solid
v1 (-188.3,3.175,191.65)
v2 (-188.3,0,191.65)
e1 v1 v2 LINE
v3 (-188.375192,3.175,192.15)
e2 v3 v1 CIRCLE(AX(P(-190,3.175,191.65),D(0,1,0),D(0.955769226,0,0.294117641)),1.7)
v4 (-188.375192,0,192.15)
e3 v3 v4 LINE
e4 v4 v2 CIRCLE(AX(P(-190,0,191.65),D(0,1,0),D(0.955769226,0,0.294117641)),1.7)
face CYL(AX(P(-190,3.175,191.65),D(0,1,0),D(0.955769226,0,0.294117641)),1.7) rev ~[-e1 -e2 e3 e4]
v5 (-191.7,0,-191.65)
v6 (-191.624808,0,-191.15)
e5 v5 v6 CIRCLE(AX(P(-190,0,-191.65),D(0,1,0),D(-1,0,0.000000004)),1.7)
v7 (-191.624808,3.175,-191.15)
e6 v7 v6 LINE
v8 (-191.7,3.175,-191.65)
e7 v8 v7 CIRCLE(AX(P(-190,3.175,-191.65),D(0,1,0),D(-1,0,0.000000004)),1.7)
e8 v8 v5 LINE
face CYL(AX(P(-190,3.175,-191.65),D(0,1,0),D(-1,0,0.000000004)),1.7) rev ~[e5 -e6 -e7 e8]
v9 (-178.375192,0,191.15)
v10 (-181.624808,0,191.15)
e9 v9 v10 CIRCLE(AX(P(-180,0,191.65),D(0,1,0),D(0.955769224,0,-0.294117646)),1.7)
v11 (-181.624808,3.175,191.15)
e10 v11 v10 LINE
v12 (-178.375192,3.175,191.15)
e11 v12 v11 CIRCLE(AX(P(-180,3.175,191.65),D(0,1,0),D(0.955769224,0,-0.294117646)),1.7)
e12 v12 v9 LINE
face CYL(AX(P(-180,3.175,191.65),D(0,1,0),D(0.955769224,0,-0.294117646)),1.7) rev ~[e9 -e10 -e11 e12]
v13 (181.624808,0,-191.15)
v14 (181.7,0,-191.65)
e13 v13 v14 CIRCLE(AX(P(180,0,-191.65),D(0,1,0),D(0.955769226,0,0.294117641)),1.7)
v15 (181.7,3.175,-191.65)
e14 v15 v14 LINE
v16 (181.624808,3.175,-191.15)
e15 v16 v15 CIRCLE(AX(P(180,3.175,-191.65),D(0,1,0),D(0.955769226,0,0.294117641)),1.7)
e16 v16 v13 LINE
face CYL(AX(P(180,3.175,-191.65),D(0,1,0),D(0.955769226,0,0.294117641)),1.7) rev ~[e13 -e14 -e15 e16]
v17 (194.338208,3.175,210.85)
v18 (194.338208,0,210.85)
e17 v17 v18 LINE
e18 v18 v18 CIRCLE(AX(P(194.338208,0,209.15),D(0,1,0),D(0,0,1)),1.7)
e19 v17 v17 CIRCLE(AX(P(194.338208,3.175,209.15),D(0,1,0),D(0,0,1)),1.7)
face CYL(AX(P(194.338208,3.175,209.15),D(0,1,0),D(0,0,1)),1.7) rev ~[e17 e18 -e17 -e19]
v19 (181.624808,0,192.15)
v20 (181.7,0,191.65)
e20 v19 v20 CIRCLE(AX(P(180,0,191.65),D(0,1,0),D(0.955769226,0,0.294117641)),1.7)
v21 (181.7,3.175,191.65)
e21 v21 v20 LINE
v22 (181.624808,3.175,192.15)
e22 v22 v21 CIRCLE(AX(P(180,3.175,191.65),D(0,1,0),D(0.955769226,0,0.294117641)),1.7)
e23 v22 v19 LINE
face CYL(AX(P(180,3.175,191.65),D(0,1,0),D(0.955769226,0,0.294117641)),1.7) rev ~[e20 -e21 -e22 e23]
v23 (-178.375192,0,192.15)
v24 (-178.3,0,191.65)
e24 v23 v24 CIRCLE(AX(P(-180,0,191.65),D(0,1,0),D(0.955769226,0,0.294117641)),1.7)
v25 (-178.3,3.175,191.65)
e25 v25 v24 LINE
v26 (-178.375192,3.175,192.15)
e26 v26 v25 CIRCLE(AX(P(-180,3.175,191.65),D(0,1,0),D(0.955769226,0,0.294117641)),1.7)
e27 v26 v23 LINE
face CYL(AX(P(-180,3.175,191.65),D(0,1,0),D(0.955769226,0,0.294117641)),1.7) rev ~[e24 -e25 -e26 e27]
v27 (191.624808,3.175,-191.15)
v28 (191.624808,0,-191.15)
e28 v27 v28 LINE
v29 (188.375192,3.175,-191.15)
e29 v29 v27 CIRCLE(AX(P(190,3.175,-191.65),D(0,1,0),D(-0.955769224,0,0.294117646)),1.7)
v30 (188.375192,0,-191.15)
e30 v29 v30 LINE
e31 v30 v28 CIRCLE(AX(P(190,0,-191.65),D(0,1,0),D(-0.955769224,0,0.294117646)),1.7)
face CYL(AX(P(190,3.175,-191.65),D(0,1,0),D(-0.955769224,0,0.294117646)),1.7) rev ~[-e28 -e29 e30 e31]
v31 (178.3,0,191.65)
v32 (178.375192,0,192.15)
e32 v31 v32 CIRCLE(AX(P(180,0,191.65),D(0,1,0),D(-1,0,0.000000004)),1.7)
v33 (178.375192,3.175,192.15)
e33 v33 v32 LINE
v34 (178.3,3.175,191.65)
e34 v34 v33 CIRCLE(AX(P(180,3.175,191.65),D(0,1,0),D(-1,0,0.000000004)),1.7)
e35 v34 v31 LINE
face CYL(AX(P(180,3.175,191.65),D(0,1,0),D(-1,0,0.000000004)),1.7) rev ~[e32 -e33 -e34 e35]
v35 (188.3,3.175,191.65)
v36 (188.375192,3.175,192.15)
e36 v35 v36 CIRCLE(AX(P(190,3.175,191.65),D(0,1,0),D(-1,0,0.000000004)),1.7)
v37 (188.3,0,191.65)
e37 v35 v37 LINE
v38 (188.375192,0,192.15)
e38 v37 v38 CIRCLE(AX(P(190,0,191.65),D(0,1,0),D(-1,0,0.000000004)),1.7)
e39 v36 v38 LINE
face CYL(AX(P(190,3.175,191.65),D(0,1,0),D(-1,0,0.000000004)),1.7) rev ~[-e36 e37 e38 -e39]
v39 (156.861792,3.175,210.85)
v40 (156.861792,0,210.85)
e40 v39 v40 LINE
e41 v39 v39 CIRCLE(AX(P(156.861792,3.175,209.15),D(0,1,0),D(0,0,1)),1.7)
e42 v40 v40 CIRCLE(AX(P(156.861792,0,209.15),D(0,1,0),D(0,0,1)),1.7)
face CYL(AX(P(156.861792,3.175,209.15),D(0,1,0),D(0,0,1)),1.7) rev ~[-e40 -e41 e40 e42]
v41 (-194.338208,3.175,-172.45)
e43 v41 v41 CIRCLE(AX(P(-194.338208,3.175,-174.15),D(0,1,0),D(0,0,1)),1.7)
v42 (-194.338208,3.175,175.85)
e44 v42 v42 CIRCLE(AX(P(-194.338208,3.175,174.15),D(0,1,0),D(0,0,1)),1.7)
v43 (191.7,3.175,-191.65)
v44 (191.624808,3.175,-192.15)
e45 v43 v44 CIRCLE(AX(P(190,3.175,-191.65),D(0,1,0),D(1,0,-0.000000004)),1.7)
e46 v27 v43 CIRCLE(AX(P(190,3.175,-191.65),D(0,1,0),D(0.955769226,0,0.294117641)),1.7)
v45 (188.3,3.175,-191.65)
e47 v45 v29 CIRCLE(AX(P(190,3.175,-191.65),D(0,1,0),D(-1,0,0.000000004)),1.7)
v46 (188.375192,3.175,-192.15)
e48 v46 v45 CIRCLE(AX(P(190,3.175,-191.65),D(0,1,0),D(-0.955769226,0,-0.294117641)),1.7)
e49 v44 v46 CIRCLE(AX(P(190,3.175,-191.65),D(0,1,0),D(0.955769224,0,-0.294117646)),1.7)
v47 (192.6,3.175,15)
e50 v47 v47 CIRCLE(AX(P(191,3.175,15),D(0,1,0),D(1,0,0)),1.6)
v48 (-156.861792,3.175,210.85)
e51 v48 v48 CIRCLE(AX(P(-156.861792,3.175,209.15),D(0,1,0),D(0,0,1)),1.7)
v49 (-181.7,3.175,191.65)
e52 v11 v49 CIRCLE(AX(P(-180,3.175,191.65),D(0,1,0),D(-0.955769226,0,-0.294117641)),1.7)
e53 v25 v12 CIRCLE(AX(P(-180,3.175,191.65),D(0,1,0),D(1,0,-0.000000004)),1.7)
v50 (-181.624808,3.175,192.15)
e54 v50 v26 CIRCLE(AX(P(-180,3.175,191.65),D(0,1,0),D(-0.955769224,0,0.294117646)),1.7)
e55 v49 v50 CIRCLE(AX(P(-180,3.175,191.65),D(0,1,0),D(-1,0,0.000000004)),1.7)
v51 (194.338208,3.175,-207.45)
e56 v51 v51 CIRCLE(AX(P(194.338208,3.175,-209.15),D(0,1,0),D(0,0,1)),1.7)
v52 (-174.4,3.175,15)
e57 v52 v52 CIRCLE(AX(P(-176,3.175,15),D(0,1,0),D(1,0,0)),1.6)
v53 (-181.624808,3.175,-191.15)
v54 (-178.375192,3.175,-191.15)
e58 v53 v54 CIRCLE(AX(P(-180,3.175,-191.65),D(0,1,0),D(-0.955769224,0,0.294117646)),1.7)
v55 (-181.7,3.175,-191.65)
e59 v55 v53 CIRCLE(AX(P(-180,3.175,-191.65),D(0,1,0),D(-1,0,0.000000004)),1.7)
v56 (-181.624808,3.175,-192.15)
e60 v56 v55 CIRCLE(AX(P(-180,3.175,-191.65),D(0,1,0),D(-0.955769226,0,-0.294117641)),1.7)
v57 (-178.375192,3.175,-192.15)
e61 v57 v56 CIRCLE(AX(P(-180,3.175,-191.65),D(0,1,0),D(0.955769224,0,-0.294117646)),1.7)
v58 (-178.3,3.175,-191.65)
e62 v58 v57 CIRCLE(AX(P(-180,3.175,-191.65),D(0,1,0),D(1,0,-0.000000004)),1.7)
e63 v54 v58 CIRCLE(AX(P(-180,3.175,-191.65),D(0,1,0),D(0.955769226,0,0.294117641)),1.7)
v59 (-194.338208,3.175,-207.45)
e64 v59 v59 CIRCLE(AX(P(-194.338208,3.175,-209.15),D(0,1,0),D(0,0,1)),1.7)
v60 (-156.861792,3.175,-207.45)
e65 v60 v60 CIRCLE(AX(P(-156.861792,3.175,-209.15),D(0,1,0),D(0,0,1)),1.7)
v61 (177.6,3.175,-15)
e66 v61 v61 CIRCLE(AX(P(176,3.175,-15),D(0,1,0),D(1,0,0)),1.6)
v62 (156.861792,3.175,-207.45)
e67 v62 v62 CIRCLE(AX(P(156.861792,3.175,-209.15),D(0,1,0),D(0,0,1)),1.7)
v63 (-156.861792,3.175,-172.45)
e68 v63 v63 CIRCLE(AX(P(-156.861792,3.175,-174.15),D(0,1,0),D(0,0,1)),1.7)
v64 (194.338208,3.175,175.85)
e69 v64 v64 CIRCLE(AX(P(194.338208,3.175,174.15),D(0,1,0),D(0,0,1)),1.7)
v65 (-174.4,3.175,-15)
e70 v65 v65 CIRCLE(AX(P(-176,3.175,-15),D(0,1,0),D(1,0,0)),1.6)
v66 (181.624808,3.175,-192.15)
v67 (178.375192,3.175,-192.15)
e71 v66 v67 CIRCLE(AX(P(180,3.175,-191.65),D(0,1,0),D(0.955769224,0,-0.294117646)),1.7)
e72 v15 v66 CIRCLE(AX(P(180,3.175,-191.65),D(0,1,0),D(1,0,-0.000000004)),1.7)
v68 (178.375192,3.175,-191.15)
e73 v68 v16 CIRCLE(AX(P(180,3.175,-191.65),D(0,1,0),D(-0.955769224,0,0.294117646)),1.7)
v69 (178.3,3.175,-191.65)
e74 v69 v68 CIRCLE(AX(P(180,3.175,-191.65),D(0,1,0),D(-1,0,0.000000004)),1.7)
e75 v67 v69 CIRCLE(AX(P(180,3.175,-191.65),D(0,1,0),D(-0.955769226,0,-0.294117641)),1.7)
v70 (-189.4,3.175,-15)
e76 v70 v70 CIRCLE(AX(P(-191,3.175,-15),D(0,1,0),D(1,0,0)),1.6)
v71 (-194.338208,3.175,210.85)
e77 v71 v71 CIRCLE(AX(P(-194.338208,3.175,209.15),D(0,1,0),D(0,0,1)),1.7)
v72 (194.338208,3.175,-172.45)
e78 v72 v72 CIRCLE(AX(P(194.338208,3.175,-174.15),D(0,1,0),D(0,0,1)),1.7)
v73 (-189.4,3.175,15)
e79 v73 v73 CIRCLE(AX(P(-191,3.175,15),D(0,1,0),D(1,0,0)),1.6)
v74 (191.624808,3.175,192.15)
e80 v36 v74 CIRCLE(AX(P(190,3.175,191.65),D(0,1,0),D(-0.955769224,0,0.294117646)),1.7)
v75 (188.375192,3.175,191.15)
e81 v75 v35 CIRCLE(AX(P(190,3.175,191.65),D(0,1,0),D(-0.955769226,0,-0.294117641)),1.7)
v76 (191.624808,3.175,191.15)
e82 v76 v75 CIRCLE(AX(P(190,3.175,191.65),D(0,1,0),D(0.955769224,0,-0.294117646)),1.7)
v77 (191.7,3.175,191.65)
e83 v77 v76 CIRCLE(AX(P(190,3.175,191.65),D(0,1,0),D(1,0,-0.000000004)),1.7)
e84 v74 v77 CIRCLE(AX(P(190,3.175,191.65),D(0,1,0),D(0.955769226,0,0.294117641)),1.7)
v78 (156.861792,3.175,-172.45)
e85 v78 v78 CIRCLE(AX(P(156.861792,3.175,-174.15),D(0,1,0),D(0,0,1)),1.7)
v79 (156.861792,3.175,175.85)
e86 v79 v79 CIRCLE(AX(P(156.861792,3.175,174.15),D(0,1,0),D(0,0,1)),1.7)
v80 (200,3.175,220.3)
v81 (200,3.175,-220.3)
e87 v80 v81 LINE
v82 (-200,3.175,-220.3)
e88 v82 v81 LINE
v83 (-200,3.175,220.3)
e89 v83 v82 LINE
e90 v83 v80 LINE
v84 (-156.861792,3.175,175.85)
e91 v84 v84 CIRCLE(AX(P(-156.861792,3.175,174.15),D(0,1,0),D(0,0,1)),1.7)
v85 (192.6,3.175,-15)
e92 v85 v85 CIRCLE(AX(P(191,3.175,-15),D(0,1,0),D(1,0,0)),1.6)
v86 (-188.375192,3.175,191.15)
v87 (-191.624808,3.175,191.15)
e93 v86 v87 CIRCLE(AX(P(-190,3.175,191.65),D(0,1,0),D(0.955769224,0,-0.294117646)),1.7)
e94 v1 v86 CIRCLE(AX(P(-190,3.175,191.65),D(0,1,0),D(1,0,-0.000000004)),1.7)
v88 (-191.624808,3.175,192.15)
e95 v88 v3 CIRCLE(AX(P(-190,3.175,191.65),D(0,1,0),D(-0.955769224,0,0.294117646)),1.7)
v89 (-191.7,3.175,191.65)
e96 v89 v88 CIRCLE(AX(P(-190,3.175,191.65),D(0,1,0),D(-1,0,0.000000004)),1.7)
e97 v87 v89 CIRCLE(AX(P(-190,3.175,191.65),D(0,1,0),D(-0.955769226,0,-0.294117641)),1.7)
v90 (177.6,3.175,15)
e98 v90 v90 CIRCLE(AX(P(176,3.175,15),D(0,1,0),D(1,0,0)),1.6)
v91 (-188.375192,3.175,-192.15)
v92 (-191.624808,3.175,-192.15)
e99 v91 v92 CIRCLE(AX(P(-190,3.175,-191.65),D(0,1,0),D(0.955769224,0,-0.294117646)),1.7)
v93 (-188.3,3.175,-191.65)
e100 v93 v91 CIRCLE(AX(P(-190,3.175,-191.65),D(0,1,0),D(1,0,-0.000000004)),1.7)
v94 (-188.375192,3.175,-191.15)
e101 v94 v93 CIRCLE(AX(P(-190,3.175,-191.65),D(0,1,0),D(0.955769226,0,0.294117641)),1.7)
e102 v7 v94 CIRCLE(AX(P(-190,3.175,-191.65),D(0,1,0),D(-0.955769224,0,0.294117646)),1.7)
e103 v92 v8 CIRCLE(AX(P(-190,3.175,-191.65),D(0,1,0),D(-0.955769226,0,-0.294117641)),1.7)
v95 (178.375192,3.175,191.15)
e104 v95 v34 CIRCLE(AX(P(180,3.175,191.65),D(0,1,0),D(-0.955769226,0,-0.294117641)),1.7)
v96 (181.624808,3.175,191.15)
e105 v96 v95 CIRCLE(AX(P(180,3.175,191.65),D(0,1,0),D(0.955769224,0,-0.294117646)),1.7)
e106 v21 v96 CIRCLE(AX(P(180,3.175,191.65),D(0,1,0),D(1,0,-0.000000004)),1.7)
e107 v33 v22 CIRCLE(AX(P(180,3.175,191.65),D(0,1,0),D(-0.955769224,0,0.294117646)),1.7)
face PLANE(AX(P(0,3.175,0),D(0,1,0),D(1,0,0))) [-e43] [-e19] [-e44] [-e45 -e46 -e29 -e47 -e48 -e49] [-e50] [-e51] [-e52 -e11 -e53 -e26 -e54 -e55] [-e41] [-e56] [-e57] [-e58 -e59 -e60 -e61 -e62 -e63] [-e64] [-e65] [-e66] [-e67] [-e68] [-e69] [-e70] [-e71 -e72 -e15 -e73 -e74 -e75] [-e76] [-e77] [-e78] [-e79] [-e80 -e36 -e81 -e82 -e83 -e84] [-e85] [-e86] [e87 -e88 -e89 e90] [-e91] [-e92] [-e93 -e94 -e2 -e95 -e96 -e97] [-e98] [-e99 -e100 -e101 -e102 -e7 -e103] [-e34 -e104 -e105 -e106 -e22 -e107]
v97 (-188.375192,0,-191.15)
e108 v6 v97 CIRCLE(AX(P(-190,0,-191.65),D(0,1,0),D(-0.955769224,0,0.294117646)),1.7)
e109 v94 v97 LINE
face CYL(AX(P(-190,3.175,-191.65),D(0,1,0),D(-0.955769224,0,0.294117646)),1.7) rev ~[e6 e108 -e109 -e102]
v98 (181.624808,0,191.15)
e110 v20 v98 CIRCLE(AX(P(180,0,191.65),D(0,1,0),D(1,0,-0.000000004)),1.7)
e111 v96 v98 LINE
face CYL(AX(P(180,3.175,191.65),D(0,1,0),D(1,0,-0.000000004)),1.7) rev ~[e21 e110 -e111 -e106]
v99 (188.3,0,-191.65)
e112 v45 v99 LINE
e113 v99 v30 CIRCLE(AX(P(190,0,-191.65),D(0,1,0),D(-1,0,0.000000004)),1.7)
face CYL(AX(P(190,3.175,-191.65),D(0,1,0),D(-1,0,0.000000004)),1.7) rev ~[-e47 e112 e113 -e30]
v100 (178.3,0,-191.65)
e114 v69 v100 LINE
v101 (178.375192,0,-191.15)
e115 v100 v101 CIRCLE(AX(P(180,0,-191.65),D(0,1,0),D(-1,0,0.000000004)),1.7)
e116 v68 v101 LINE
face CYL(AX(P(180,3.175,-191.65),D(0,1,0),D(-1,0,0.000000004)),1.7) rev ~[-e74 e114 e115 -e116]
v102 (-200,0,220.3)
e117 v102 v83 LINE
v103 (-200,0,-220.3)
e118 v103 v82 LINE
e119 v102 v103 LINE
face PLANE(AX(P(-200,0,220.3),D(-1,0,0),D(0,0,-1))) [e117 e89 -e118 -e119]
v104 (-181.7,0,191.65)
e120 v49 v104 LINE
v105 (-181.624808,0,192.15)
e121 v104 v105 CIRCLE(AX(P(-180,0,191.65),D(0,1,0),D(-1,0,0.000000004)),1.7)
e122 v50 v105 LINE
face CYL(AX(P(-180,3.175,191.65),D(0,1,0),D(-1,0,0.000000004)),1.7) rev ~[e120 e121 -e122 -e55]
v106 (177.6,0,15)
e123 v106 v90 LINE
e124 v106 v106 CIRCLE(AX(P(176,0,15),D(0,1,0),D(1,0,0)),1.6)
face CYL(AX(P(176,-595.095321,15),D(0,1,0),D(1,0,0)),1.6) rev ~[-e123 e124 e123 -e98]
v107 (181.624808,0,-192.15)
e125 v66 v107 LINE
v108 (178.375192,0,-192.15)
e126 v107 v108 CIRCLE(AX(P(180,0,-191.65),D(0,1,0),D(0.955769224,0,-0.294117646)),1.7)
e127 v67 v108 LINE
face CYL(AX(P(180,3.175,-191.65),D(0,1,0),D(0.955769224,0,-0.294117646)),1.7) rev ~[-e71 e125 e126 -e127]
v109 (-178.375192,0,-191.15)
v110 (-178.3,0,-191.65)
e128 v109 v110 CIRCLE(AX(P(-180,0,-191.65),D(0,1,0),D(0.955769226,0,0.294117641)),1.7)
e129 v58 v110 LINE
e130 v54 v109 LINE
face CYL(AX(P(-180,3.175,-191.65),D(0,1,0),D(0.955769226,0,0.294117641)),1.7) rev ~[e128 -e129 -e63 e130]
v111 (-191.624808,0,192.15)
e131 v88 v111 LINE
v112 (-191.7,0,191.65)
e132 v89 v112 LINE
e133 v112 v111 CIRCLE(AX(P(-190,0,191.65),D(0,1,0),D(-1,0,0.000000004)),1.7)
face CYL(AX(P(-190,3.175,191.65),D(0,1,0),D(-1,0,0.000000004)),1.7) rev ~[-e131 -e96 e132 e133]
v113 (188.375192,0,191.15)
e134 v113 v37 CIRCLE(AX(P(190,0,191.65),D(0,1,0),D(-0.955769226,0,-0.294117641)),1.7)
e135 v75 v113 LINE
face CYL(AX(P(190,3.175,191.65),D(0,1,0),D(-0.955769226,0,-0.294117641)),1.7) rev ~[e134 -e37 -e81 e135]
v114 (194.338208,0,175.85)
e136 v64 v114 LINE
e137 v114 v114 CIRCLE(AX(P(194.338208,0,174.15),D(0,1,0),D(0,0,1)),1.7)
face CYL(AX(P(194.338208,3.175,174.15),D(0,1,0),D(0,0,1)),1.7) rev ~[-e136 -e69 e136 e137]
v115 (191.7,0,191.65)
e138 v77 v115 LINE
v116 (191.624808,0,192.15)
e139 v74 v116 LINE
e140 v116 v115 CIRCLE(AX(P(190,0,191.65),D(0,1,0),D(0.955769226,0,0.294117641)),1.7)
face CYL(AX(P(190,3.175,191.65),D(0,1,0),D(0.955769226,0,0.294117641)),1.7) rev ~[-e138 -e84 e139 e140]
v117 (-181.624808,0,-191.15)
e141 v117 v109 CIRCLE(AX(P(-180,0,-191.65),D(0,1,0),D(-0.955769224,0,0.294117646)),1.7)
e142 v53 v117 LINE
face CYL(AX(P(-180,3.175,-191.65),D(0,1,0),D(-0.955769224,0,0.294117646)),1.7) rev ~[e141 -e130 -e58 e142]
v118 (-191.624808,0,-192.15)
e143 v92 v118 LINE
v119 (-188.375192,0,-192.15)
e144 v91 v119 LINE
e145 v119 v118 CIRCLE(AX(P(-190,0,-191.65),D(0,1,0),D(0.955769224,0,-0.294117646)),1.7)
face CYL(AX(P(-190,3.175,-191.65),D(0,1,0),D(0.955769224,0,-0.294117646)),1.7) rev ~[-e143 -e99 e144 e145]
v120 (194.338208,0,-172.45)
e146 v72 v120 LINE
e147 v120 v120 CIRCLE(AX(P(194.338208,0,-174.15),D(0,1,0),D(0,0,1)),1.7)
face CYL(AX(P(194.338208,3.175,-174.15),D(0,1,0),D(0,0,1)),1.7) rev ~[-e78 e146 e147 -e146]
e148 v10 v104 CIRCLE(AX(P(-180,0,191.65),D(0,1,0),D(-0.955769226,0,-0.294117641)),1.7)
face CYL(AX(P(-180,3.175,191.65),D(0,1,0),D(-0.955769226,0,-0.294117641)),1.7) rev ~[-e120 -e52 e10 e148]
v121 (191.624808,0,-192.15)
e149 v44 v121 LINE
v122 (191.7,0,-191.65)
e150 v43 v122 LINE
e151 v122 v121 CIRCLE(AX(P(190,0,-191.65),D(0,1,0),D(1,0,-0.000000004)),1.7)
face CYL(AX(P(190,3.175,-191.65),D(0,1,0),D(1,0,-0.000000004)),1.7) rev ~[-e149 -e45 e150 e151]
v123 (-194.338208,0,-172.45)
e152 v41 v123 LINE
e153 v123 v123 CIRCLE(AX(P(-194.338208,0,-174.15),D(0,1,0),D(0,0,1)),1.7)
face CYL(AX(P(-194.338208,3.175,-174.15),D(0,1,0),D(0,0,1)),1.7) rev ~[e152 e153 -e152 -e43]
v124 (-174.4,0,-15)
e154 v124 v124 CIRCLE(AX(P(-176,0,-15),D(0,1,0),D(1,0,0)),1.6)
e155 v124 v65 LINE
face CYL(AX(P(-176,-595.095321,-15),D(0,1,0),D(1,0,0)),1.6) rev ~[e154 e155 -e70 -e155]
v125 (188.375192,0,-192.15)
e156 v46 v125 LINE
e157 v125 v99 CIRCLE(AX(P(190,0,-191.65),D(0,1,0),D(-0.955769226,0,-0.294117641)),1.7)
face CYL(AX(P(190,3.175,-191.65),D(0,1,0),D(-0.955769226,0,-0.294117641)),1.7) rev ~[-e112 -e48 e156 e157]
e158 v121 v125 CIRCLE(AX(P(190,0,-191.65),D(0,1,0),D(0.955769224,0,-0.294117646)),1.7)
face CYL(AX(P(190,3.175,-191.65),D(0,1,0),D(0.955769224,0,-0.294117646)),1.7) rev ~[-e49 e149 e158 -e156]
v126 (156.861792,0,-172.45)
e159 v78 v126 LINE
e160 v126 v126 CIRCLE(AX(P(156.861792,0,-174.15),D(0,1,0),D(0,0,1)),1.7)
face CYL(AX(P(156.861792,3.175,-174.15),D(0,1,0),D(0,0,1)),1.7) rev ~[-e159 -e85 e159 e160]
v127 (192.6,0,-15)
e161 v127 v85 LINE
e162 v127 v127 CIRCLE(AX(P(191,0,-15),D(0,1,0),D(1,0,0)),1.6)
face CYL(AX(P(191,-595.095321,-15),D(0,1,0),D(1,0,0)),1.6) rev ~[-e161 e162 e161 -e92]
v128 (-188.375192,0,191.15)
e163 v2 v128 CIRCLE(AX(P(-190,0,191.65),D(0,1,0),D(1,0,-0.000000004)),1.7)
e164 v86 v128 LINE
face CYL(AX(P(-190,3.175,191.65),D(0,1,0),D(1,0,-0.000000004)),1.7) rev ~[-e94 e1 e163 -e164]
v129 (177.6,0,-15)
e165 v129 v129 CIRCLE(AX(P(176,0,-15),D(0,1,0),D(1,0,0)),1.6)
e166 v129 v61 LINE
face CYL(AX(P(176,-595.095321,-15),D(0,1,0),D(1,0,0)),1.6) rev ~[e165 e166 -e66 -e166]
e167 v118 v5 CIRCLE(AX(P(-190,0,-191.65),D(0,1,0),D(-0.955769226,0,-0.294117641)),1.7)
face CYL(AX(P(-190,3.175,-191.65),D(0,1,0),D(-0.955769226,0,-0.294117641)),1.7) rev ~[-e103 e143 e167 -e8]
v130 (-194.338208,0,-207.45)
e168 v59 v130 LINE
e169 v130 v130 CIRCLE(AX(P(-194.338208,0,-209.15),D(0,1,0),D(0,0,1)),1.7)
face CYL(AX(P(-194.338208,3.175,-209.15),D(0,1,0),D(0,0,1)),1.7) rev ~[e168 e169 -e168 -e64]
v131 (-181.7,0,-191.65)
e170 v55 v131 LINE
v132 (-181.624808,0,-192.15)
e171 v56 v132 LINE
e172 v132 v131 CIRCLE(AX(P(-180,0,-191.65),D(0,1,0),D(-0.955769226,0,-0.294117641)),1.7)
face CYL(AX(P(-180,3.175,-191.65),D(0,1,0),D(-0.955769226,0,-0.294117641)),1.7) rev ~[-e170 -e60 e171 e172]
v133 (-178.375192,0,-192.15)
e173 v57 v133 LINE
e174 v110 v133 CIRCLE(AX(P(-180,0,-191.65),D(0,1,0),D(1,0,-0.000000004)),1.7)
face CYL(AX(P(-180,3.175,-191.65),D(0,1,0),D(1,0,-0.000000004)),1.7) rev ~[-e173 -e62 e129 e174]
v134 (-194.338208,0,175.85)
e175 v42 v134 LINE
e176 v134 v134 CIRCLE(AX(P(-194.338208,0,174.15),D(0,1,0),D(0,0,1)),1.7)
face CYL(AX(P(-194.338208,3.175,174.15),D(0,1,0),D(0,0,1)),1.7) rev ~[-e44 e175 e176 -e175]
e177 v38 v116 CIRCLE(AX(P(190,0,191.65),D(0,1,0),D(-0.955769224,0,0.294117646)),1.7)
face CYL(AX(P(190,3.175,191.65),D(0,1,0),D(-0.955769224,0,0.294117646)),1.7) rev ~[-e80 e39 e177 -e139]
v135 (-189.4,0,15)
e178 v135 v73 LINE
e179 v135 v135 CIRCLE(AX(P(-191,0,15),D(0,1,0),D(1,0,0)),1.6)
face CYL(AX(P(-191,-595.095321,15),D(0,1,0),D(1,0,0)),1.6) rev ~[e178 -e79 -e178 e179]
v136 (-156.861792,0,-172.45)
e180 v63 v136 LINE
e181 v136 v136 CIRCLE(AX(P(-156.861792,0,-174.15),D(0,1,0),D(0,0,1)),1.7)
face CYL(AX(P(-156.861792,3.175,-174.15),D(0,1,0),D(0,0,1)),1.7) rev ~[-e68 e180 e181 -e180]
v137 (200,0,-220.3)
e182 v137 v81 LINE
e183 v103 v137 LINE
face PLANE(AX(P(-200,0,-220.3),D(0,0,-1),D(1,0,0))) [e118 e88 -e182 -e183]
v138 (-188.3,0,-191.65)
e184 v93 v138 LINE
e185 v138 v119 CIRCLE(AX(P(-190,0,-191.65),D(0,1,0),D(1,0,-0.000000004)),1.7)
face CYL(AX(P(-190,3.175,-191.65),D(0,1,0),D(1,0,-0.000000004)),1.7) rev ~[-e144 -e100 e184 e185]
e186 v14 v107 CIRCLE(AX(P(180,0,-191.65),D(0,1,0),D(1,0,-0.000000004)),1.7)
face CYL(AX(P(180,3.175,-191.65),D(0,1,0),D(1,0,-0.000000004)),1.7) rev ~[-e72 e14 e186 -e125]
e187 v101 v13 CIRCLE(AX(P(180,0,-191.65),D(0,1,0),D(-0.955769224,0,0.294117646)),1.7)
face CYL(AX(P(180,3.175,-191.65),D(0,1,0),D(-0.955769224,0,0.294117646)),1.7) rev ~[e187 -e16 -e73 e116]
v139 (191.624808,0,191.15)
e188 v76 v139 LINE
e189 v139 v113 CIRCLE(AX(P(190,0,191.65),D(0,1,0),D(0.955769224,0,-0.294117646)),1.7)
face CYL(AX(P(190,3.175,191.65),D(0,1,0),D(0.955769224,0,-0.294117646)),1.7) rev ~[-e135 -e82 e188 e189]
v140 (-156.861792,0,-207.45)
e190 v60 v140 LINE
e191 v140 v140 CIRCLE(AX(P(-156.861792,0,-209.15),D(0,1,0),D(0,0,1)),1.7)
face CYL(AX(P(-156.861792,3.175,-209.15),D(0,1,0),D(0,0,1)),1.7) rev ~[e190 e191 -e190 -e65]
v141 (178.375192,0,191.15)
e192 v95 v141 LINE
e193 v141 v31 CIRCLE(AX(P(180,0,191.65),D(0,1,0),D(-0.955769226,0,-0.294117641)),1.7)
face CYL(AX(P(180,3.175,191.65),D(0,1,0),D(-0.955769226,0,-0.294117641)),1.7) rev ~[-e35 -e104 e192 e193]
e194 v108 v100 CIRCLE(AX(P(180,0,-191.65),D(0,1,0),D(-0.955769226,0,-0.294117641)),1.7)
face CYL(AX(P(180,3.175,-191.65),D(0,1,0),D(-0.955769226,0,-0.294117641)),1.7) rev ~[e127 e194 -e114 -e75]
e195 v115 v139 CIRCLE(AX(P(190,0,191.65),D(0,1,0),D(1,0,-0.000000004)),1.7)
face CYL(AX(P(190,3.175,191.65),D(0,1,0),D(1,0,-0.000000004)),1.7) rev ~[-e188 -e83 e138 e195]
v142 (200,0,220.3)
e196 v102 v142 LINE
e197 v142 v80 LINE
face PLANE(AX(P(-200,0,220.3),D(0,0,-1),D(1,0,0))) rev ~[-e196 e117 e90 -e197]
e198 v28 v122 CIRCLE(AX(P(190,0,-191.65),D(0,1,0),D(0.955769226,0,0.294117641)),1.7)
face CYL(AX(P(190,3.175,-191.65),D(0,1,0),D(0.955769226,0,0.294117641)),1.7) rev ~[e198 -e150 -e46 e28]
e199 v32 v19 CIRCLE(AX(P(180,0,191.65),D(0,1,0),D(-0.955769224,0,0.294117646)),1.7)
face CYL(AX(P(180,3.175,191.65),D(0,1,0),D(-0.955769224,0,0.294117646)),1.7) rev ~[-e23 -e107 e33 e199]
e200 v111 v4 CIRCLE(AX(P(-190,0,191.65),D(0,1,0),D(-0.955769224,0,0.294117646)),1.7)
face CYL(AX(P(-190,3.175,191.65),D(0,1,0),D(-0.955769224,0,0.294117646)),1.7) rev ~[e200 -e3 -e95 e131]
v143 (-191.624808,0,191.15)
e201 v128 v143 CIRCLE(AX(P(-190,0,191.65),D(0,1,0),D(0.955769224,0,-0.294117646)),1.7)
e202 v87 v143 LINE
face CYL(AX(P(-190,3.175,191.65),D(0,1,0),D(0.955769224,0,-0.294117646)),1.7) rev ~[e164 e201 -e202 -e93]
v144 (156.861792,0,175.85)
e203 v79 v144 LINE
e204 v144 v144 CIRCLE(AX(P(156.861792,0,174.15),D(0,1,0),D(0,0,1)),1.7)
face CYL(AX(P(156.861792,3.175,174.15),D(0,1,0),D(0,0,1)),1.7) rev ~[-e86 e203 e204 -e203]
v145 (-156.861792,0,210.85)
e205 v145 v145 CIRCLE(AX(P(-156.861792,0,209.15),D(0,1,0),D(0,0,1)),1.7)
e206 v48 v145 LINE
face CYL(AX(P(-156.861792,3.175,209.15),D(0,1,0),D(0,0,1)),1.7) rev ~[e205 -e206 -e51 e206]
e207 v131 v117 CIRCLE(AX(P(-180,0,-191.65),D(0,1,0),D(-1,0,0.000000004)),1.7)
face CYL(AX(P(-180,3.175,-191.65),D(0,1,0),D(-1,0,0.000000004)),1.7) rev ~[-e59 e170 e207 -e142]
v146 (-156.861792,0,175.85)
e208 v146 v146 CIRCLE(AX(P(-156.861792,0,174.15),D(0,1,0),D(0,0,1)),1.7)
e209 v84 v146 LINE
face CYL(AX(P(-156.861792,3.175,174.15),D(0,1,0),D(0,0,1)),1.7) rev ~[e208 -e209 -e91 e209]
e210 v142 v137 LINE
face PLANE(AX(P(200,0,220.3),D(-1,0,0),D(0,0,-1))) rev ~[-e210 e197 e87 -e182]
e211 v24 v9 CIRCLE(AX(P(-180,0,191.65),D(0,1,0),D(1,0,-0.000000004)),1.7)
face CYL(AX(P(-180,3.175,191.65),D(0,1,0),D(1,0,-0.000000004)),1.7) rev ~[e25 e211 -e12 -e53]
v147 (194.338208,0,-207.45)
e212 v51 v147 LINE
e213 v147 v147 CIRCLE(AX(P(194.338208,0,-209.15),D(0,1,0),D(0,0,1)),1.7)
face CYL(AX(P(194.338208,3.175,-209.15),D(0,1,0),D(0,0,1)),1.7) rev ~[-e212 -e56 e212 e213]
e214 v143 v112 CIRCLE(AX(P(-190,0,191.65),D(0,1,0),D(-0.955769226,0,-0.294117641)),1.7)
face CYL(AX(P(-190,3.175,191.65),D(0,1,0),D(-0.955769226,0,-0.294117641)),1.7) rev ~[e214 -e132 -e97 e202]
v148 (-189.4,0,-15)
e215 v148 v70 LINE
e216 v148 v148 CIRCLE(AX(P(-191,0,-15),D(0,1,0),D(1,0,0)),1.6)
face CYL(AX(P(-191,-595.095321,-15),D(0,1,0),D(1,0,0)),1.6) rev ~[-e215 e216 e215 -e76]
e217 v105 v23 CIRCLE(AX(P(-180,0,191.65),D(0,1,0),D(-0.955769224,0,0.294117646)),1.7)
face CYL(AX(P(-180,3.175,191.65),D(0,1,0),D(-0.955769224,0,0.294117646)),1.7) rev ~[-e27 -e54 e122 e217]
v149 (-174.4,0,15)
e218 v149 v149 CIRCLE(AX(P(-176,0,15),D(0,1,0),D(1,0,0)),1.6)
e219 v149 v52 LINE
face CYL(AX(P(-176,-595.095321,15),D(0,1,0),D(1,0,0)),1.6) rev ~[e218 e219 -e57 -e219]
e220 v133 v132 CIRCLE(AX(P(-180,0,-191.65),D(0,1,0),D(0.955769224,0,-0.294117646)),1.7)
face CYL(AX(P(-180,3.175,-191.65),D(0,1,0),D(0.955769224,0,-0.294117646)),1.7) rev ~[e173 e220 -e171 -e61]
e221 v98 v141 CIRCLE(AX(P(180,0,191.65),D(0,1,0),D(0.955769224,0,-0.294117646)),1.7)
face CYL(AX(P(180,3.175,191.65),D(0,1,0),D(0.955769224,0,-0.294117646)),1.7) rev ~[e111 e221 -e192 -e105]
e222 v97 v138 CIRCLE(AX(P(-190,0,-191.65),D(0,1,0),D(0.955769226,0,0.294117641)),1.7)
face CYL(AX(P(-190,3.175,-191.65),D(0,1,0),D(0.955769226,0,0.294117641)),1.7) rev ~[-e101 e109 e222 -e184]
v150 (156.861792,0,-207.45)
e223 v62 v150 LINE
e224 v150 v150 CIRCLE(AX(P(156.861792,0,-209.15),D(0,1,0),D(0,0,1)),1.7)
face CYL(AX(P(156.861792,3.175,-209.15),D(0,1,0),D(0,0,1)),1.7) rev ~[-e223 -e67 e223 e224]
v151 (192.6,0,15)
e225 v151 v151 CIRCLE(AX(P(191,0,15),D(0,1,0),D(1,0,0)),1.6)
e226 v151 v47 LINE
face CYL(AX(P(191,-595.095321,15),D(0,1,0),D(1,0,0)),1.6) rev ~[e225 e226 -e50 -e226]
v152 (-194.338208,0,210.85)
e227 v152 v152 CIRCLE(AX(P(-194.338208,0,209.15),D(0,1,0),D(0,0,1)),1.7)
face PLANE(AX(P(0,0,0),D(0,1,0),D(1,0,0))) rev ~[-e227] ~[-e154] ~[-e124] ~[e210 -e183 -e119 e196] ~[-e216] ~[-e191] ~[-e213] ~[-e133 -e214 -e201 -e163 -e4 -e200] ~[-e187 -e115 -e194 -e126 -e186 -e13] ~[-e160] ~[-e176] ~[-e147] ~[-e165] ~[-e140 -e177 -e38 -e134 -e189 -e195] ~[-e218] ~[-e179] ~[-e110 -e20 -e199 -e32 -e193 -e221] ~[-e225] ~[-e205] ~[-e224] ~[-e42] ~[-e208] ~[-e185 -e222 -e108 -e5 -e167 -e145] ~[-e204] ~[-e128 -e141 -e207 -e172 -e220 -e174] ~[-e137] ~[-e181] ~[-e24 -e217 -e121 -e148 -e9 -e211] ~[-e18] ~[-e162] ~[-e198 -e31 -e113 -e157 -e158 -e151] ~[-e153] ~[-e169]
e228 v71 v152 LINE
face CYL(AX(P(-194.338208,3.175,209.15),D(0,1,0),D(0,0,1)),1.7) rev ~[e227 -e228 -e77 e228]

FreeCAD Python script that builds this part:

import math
import FreeCAD as App
import Part
import Sketcher

doc = App.newDocument("Part")
params = doc.addObject("Spreadsheet::Sheet", "Params")
for row, (alias, value) in enumerate([
    ("sketch1_width", "400 mm"),
    ("sketch1_height", "440.6 mm"),
    ("pad1_length", "3.175 mm"),
    ("sketch2_diameter", "3.4 mm"),
    ("sketch3_diameter", "3.2 mm"),
    ("hole_diameter", "3.2 mm"),
], start=1):
    params.set(f"A{row}", alias)
    params.set(f"B{row}", "=" + value)
    params.setAlias(f"B{row}", alias)

body = doc.addObject("PartDesign::Body", "Body")

sketch1 = body.newObject("Sketcher::SketchObject", "Sketch")
sketch1.AttachmentSupport = (doc.getObject("XZ_Plane"), [""])
sketch1.MapMode = "FlatFace"
sketch1.addGeometry([
    Part.LineSegment(App.Vector(-200, -220, 0), App.Vector(-200, 220, 0)),
    Part.LineSegment(App.Vector(-200, 220, 0), App.Vector(200, 220, 0)),
    Part.LineSegment(App.Vector(200, 220, 0), App.Vector(200, -220, 0)),
    Part.LineSegment(App.Vector(200, -220, 0), App.Vector(-200, -220, 0)),
], False)
sketch1.addConstraint([
    Sketcher.Constraint("Coincident", 0, 2, 1, 1),
    Sketcher.Constraint("Coincident", 1, 2, 2, 1),
    Sketcher.Constraint("Coincident", 2, 2, 3, 1),
    Sketcher.Constraint("Coincident", 3, 2, 0, 1),
    Sketcher.Constraint("Vertical", 0),
    Sketcher.Constraint("Horizontal", 1),
    Sketcher.Constraint("Vertical", 2),
    Sketcher.Constraint("Horizontal", 3),
    Sketcher.Constraint("Symmetric", 0, 2, 2, 2, -1, 1),
    Sketcher.Constraint("DistanceX", 1, 1, 1, 2, 400.0),
    Sketcher.Constraint("DistanceY", 0, 1, 0, 2, 440.6),
])
sketch1.setExpression("Constraints[9]", "Params.sketch1_width")
sketch1.setExpression("Constraints[10]", "Params.sketch1_height")
pad1 = body.newObject("PartDesign::Pad", "Pad")
pad1.Profile = sketch1
pad1.setExpression("Length", "Params.pad1_length")
pad1.Reversed = True

sketch2 = body.newObject("Sketcher::SketchObject", "Sketch001")
sketch2.AttachmentSupport = (doc.getObject("XZ_Plane"), [""])
sketch2.MapMode = "FlatFace"
sketch2.AttachmentOffset = App.Placement(App.Vector(0, 0, -3.175), App.Rotation())
sketch2.addGeometry([
    Part.Circle(App.Vector(-156.9, -174.2, 0), App.Vector(0, 0, 1), 1.7),
    Part.Circle(App.Vector(-194.3, -174.2, 0), App.Vector(0, 0, 1), 1.7),
    Part.Circle(App.Vector(-156.9, -209.2, 0), App.Vector(0, 0, 1), 1.7),
    Part.Circle(App.Vector(-194.3, -209.2, 0), App.Vector(0, 0, 1), 1.7),
    Part.Circle(App.Vector(-156.9, 209.2, 0), App.Vector(0, 0, 1), 1.7),
    Part.Circle(App.Vector(-194.3, 209.2, 0), App.Vector(0, 0, 1), 1.7),
    Part.Circle(App.Vector(-156.9, 174.2, 0), App.Vector(0, 0, 1), 1.7),
    Part.Circle(App.Vector(-194.3, 174.2, 0), App.Vector(0, 0, 1), 1.7),
    Part.Circle(App.Vector(194.3, 174.2, 0), App.Vector(0, 0, 1), 1.7),
    Part.Circle(App.Vector(156.9, 174.2, 0), App.Vector(0, 0, 1), 1.7),
    Part.Circle(App.Vector(194.3, 209.2, 0), App.Vector(0, 0, 1), 1.7),
    Part.Circle(App.Vector(156.9, 209.2, 0), App.Vector(0, 0, 1), 1.7),
    Part.Circle(App.Vector(194.3, -174.2, 0), App.Vector(0, 0, 1), 1.7),
    Part.Circle(App.Vector(194.3, -209.2, 0), App.Vector(0, 0, 1), 1.7),
    Part.Circle(App.Vector(156.9, -174.2, 0), App.Vector(0, 0, 1), 1.7),
    Part.Circle(App.Vector(156.9, -209.2, 0), App.Vector(0, 0, 1), 1.7),
    Part.ArcOfCircle(Part.Circle(App.Vector(-180, -191.7, 0), App.Vector(0, 0, 1), 1.7), math.radians(162.9), math.radians(180)),
    Part.ArcOfCircle(Part.Circle(App.Vector(-180, -191.7, 0), App.Vector(0, 0, 1), 1.7), math.radians(17), math.radians(163)),
    Part.ArcOfCircle(Part.Circle(App.Vector(-180, -191.7, 0), App.Vector(0, 0, 1), 1.7), math.radians(0), math.radians(17.1)),
    Part.ArcOfCircle(Part.Circle(App.Vector(-180, -191.6, 0), App.Vector(0, 0, 1), 1.7), math.radians(-17.1), math.radians(0)),
    Part.ArcOfCircle(Part.Circle(App.Vector(-180, -191.7, 0), App.Vector(0, 0, 1), 1.7), math.radians(-163), math.radians(-17)),
    Part.ArcOfCircle(Part.Circle(App.Vector(-180, -191.6, 0), App.Vector(0, 0, 1), 1.7), math.radians(-180), math.radians(-162.9)),
    Part.ArcOfCircle(Part.Circle(App.Vector(-190, -191.7, 0), App.Vector(0, 0, 1), 1.7), math.radians(-163), math.radians(-17)),
    Part.ArcOfCircle(Part.Circle(App.Vector(-190, -191.6, 0), App.Vector(0, 0, 1), 1.7), math.radians(-180), math.radians(-162.9)),
    Part.ArcOfCircle(Part.Circle(App.Vector(-190, -191.7, 0), App.Vector(0, 0, 1), 1.7), math.radians(162.9), math.radians(180)),
    Part.ArcOfCircle(Part.Circle(App.Vector(-190, -191.7, 0), App.Vector(0, 0, 1), 1.7), math.radians(17), math.radians(163)),
    Part.ArcOfCircle(Part.Circle(App.Vector(-190, -191.7, 0), App.Vector(0, 0, 1), 1.7), math.radians(0), math.radians(17.1)),
    Part.ArcOfCircle(Part.Circle(App.Vector(-190, -191.6, 0), App.Vector(0, 0, 1), 1.7), math.radians(-17.1), math.radians(0)),
    Part.ArcOfCircle(Part.Circle(App.Vector(-180, 191.6, 0), App.Vector(0, 0, 1), 1.7), math.radians(0), math.radians(17.1)),
    Part.ArcOfCircle(Part.Circle(App.Vector(-180, 191.7, 0), App.Vector(0, 0, 1), 1.7), math.radians(-17.1), math.radians(0)),
    Part.ArcOfCircle(Part.Circle(App.Vector(-180, 191.7, 0), App.Vector(0, 0, 1), 1.7), math.radians(-163), math.radians(-17)),
    Part.ArcOfCircle(Part.Circle(App.Vector(-180, 191.7, 0), App.Vector(0, 0, 1), 1.7), math.radians(-180), math.radians(-162.9)),
    Part.ArcOfCircle(Part.Circle(App.Vector(-180, 191.6, 0), App.Vector(0, 0, 1), 1.7), math.radians(162.9), math.radians(180)),
    Part.ArcOfCircle(Part.Circle(App.Vector(-180, 191.7, 0), App.Vector(0, 0, 1), 1.7), math.radians(17), math.radians(163)),
    Part.ArcOfCircle(Part.Circle(App.Vector(-190, 191.7, 0), App.Vector(0, 0, 1), 1.7), math.radians(17), math.radians(163)),
    Part.ArcOfCircle(Part.Circle(App.Vector(-190, 191.6, 0), App.Vector(0, 0, 1), 1.7), math.radians(0), math.radians(17.1)),
    Part.ArcOfCircle(Part.Circle(App.Vector(-190, 191.7, 0), App.Vector(0, 0, 1), 1.7), math.radians(-17.1), math.radians(0)),
    Part.ArcOfCircle(Part.Circle(App.Vector(-190, 191.7, 0), App.Vector(0, 0, 1), 1.7), math.radians(-163), math.radians(-17)),
    Part.ArcOfCircle(Part.Circle(App.Vector(-190, 191.7, 0), App.Vector(0, 0, 1), 1.7), math.radians(-180), math.radians(-162.9)),
    Part.ArcOfCircle(Part.Circle(App.Vector(-190, 191.6, 0), App.Vector(0, 0, 1), 1.7), math.radians(162.9), math.radians(180)),
    Part.ArcOfCircle(Part.Circle(App.Vector(190, 191.6, 0), App.Vector(0, 0, 1), 1.7), math.radians(0), math.radians(17.1)),
    Part.ArcOfCircle(Part.Circle(App.Vector(190, 191.7, 0), App.Vector(0, 0, 1), 1.7), math.radians(-17.1), math.radians(0)),
    Part.ArcOfCircle(Part.Circle(App.Vector(190, 191.7, 0), App.Vector(0, 0, 1), 1.7), math.radians(-163), math.radians(-17)),
    Part.ArcOfCircle(Part.Circle(App.Vector(190, 191.7, 0), App.Vector(0, 0, 1), 1.7), math.radians(-180), math.radians(-162.9)),
    Part.ArcOfCircle(Part.Circle(App.Vector(190, 191.6, 0), App.Vector(0, 0, 1), 1.7), math.radians(162.9), math.radians(180)),
    Part.ArcOfCircle(Part.Circle(App.Vector(190, 191.7, 0), App.Vector(0, 0, 1), 1.7), math.radians(17), math.radians(163)),
    Part.ArcOfCircle(Part.Circle(App.Vector(180, 191.6, 0), App.Vector(0, 0, 1), 1.7), math.radians(0), math.radians(17.1)),
    Part.ArcOfCircle(Part.Circle(App.Vector(180, 191.7, 0), App.Vector(0, 0, 1), 1.7), math.radians(-17.1), math.radians(0)),
    Part.ArcOfCircle(Part.Circle(App.Vector(180, 191.7, 0), App.Vector(0, 0, 1), 1.7), math.radians(-163), math.radians(-17)),
    Part.ArcOfCircle(Part.Circle(App.Vector(180, 191.7, 0), App.Vector(0, 0, 1), 1.7), math.radians(-180), math.radians(-162.9)),
    Part.ArcOfCircle(Part.Circle(App.Vector(180, 191.6, 0), App.Vector(0, 0, 1), 1.7), math.radians(162.9), math.radians(180)),
    Part.ArcOfCircle(Part.Circle(App.Vector(180, 191.7, 0), App.Vector(0, 0, 1), 1.7), math.radians(17), math.radians(163)),
    Part.ArcOfCircle(Part.Circle(App.Vector(190, -191.6, 0), App.Vector(0, 0, 1), 1.7), math.radians(-180), math.radians(-162.9)),
    Part.ArcOfCircle(Part.Circle(App.Vector(190, -191.7, 0), App.Vector(0, 0, 1), 1.7), math.radians(162.9), math.radians(180)),
    Part.ArcOfCircle(Part.Circle(App.Vector(190, -191.7, 0), App.Vector(0, 0, 1), 1.7), math.radians(17), math.radians(163)),
    Part.ArcOfCircle(Part.Circle(App.Vector(190, -191.7, 0), App.Vector(0, 0, 1), 1.7), math.radians(0), math.radians(17.1)),
    Part.ArcOfCircle(Part.Circle(App.Vector(190, -191.6, 0), App.Vector(0, 0, 1), 1.7), math.radians(-17.1), math.radians(0)),
    Part.ArcOfCircle(Part.Circle(App.Vector(190, -191.7, 0), App.Vector(0, 0, 1), 1.7), math.radians(-163), math.radians(-17)),
    Part.ArcOfCircle(Part.Circle(App.Vector(180, -191.7, 0), App.Vector(0, 0, 1), 1.7), math.radians(0), math.radians(17.1)),
    Part.ArcOfCircle(Part.Circle(App.Vector(180, -191.6, 0), App.Vector(0, 0, 1), 1.7), math.radians(-17.1), math.radians(0)),
    Part.ArcOfCircle(Part.Circle(App.Vector(180, -191.7, 0), App.Vector(0, 0, 1), 1.7), math.radians(-163), math.radians(-17)),
    Part.ArcOfCircle(Part.Circle(App.Vector(180, -191.6, 0), App.Vector(0, 0, 1), 1.7), math.radians(-180), math.radians(-162.9)),
    Part.ArcOfCircle(Part.Circle(App.Vector(180, -191.7, 0), App.Vector(0, 0, 1), 1.7), math.radians(162.9), math.radians(180)),
    Part.ArcOfCircle(Part.Circle(App.Vector(180, -191.7, 0), App.Vector(0, 0, 1), 1.7), math.radians(17), math.radians(163)),
], False)
sketch2.addConstraint([
    Sketcher.Constraint("Tangent", 16, 1, 17, 2),
    Sketcher.Constraint("Tangent", 17, 1, 18, 2),
    Sketcher.Constraint("Tangent", 18, 1, 19, 2),
    Sketcher.Constraint("Tangent", 19, 1, 20, 2),
    Sketcher.Constraint("Tangent", 20, 1, 21, 2),
    Sketcher.Constraint("Tangent", 21, 1, 16, 2),
    Sketcher.Constraint("Tangent", 22, 1, 23, 2),
    Sketcher.Constraint("Tangent", 23, 1, 24, 2),
    Sketcher.Constraint("Tangent", 24, 1, 25, 2),
    Sketcher.Constraint("Tangent", 25, 1, 26, 2),
    Sketcher.Constraint("Tangent", 26, 1, 27, 2),
    Sketcher.Constraint("Tangent", 27, 1, 22, 2),
    Sketcher.Constraint("Tangent", 28, 1, 29, 2),
    Sketcher.Constraint("Tangent", 29, 1, 30, 2),
    Sketcher.Constraint("Tangent", 30, 1, 31, 2),
    Sketcher.Constraint("Tangent", 31, 1, 32, 2),
    Sketcher.Constraint("Tangent", 32, 1, 33, 2),
    Sketcher.Constraint("Tangent", 33, 1, 28, 2),
    Sketcher.Constraint("Tangent", 34, 1, 35, 2),
    Sketcher.Constraint("Tangent", 35, 1, 36, 2),
    Sketcher.Constraint("Tangent", 36, 1, 37, 2),
    Sketcher.Constraint("Tangent", 37, 1, 38, 2),
    Sketcher.Constraint("Tangent", 38, 1, 39, 2),
    Sketcher.Constraint("Tangent", 39, 1, 34, 2),
    Sketcher.Constraint("Tangent", 40, 1, 41, 2),
    Sketcher.Constraint("Tangent", 41, 1, 42, 2),
    Sketcher.Constraint("Tangent", 42, 1, 43, 2),
    Sketcher.Constraint("Tangent", 43, 1, 44, 2),
    Sketcher.Constraint("Tangent", 44, 1, 45, 2),
    Sketcher.Constraint("Tangent", 45, 1, 40, 2),
    Sketcher.Constraint("Tangent", 46, 1, 47, 2),
    Sketcher.Constraint("Tangent", 47, 1, 48, 2),
    Sketcher.Constraint("Tangent", 48, 1, 49, 2),
    Sketcher.Constraint("Tangent", 49, 1, 50, 2),
    Sketcher.Constraint("Tangent", 50, 1, 51, 2),
    Sketcher.Constraint("Tangent", 51, 1, 46, 2),
    Sketcher.Constraint("Tangent", 52, 1, 53, 2),
    Sketcher.Constraint("Tangent", 53, 1, 54, 2),
    Sketcher.Constraint("Tangent", 54, 1, 55, 2),
    Sketcher.Constraint("Tangent", 55, 1, 56, 2),
    Sketcher.Constraint("Tangent", 56, 1, 57, 2),
    Sketcher.Constraint("Tangent", 57, 1, 52, 2),
    Sketcher.Constraint("Tangent", 58, 1, 59, 2),
    Sketcher.Constraint("Tangent", 59, 1, 60, 2),
    Sketcher.Constraint("Tangent", 60, 1, 61, 2),
    Sketcher.Constraint("Tangent", 61, 1, 62, 2),
    Sketcher.Constraint("Tangent", 62, 1, 63, 2),
    Sketcher.Constraint("Tangent", 63, 1, 58, 2),
    Sketcher.Constraint("Coincident", 18, 3, 16, 3),
    Sketcher.Constraint("Coincident", 24, 3, 22, 3),
    Sketcher.Constraint("Coincident", 30, 3, 28, 3),
    Sketcher.Constraint("Coincident", 36, 3, 34, 3),
    Sketcher.Constraint("Coincident", 42, 3, 40, 3),
    Sketcher.Constraint("Coincident", 48, 3, 46, 3),
    Sketcher.Constraint("Coincident", 54, 3, 52, 3),
    Sketcher.Constraint("Coincident", 60, 3, 58, 3),
    Sketcher.Constraint("Equal", 0, 1),
    Sketcher.Constraint("Equal", 1, 2),
    Sketcher.Constraint("Equal", 2, 3),
    Sketcher.Constraint("Equal", 3, 4),
    Sketcher.Constraint("Equal", 4, 5),
    Sketcher.Constraint("Equal", 5, 6),
    Sketcher.Constraint("Equal", 6, 7),
    Sketcher.Constraint("Equal", 7, 8),
    Sketcher.Constraint("Equal", 8, 9),
    Sketcher.Constraint("Equal", 9, 10),
    Sketcher.Constraint("Equal", 10, 11),
    Sketcher.Constraint("Equal", 11, 12),
    Sketcher.Constraint("Equal", 12, 13),
    Sketcher.Constraint("Equal", 13, 14),
    Sketcher.Constraint("Equal", 14, 15),
    Sketcher.Constraint("Equal", 15, 16),
    Sketcher.Constraint("Equal", 18, 19),
    Sketcher.Constraint("Equal", 21, 22),
    Sketcher.Constraint("Equal", 24, 25),
    Sketcher.Constraint("Equal", 27, 28),
    Sketcher.Constraint("Equal", 30, 31),
    Sketcher.Constraint("Equal", 33, 34),
    Sketcher.Constraint("Equal", 36, 37),
    Sketcher.Constraint("Equal", 39, 40),
    Sketcher.Constraint("Equal", 42, 43),
    Sketcher.Constraint("Equal", 45, 46),
    Sketcher.Constraint("Equal", 48, 49),
    Sketcher.Constraint("Equal", 51, 52),
    Sketcher.Constraint("Equal", 54, 55),
    Sketcher.Constraint("Equal", 57, 58),
    Sketcher.Constraint("Equal", 60, 61),
    Sketcher.Constraint("Symmetric", 1, 3, 8, 3, -1, 1),
    Sketcher.Constraint("Symmetric", 0, 3, 9, 3, -1, 1),
    Sketcher.Constraint("Symmetric", 3, 3, 10, 3, -1, 1),
    Sketcher.Constraint("Symmetric", 2, 3, 11, 3, -1, 1),
    Sketcher.Constraint("Symmetric", 7, 3, 12, 3, -1, 1),
    Sketcher.Constraint("Symmetric", 5, 3, 13, 3, -1, 1),
    Sketcher.Constraint("Symmetric", 6, 3, 14, 3, -1, 1),
    Sketcher.Constraint("Symmetric", 4, 3, 15, 3, -1, 1),
    Sketcher.Constraint("Symmetric", 22, 3, 40, 3, -1, 1),
    Sketcher.Constraint("Symmetric", 16, 3, 46, 3, -1, 1),
    Sketcher.Constraint("Symmetric", 34, 3, 52, 3, -1, 1),
    Sketcher.Constraint("Symmetric", 28, 3, 58, 3, -1, 1),
    Sketcher.Constraint("Symmetric", 7, 3, 8, 3, -2),
    Sketcher.Constraint("Symmetric", 6, 3, 9, 3, -2),
    Sketcher.Constraint("Symmetric", 5, 3, 10, 3, -2),
    Sketcher.Constraint("Symmetric", 4, 3, 11, 3, -2),
    Sketcher.Constraint("Symmetric", 34, 3, 40, 3, -2),
    Sketcher.Constraint("Symmetric", 28, 3, 46, 3, -2),
    Sketcher.Constraint("Horizontal", 0, 3, 1, 3),
    Sketcher.Constraint("Horizontal", 2, 3, 3, 3),
    Sketcher.Constraint("Horizontal", 21, 3, 22, 3),
    Sketcher.Constraint("Horizontal", 16, 1, 17, 1),
    Sketcher.Constraint("Horizontal", 63, 3, 18, 1),
    Sketcher.Constraint("Horizontal", 19, 1, 20, 1),
    Sketcher.Constraint("Horizontal", 18, 1, 21, 1),
    Sketcher.Constraint("Horizontal", 20, 1, 22, 1),
    Sketcher.Constraint("Horizontal", 21, 1, 23, 1),
    Sketcher.Constraint("Horizontal", 17, 1, 24, 1),
    Sketcher.Constraint("Horizontal", 24, 1, 25, 1),
    Sketcher.Constraint("Horizontal", 23, 1, 26, 1),
    Sketcher.Constraint("Horizontal", 22, 1, 27, 1),
    Sketcher.Constraint("Horizontal", 51, 3, 28, 1),
    Sketcher.Constraint("Horizontal", 29, 1, 30, 1),
    Sketcher.Constraint("Horizontal", 28, 1, 31, 1),
    Sketcher.Constraint("Horizontal", 32, 1, 33, 1),
    Sketcher.Constraint("Horizontal", 33, 1, 34, 1),
    Sketcher.Constraint("Horizontal", 31, 1, 35, 1),
    Sketcher.Constraint("Horizontal", 30, 1, 36, 1),
    Sketcher.Constraint("Horizontal", 36, 1, 37, 1),
    Sketcher.Constraint("Horizontal", 35, 1, 38, 1),
    Sketcher.Constraint("Horizontal", 34, 1, 39, 1),
    Sketcher.Constraint("Horizontal", 38, 1, 40, 1),
    Sketcher.Constraint("Horizontal", 37, 1, 41, 1),
    Sketcher.Constraint("Horizontal", 41, 1, 42, 1),
    Sketcher.Constraint("Horizontal", 40, 1, 43, 1),
    Sketcher.Constraint("Horizontal", 39, 1, 44, 1),
    Sketcher.Constraint("Horizontal", 44, 1, 45, 1),
    Sketcher.Constraint("Horizontal", 43, 1, 46, 1),
    Sketcher.Constraint("Horizontal", 42, 1, 47, 1),
    Sketcher.Constraint("Horizontal", 47, 1, 48, 1),
    Sketcher.Constraint("Horizontal", 46, 1, 49, 1),
    Sketcher.Constraint("Horizontal", 45, 1, 50, 1),
    Sketcher.Constraint("Horizontal", 50, 1, 51, 1),
    Sketcher.Constraint("Horizontal", 26, 1, 52, 1),
    Sketcher.Constraint("Horizontal", 25, 1, 53, 1),
    Sketcher.Constraint("Horizontal", 53, 1, 54, 1),
    Sketcher.Constraint("Horizontal", 52, 1, 55, 1),
    Sketcher.Constraint("Horizontal", 27, 1, 56, 1),
    Sketcher.Constraint("Horizontal", 56, 1, 57, 1),
    Sketcher.Constraint("Horizontal", 55, 1, 58, 1),
    Sketcher.Constraint("Horizontal", 57, 1, 59, 1),
    Sketcher.Constraint("Horizontal", 59, 1, 60, 1),
    Sketcher.Constraint("Horizontal", 58, 1, 61, 1),
    Sketcher.Constraint("Horizontal", 54, 1, 62, 1),
    Sketcher.Constraint("Horizontal", 62, 1, 63, 1),
    Sketcher.Constraint("Vertical", 0, 3, 2, 3),
    Sketcher.Constraint("Vertical", 1, 3, 3, 3),
    Sketcher.Constraint("Vertical", 17, 1, 19, 1),
    Sketcher.Constraint("Vertical", 19, 1, 29, 1),
    Sketcher.Constraint("Vertical", 30, 1, 32, 1),
    Sketcher.Constraint("Diameter", 0, 3.4),
    Sketcher.Constraint("DistanceX", 16, 3, -1, 1, 180.0),
    Sketcher.Constraint("DistanceX", 22, 3, -1, 1, 190.0),
    Sketcher.Constraint("DistanceY", 0, 3, -1, 1, 174.15),
    Sketcher.Constraint("DistanceY", 2, 3, -1, 1, 209.15),
    Sketcher.Constraint("DistanceY", 16, 3, -1, 1, 191.65),
    Sketcher.Constraint("DistanceY", 16, 1, -1, 1, 191.15),
    Sketcher.Constraint("DistanceX", 0, 3, -1, 1, 156.861792),
    Sketcher.Constraint("DistanceX", 1, 3, -1, 1, 194.338208),
])
sketch2.setExpression("Constraints[157]", "Params.sketch2_diameter")
pocket1 = body.newObject("PartDesign::Pocket", "Pocket")
pocket1.Profile = sketch2
pocket1.Type = "ThroughAll"
pocket1.Reversed = True

sketch3 = body.newObject("Sketcher::SketchObject", "Sketch002")
sketch3.AttachmentSupport = (doc.getObject("XZ_Plane"), [""])
sketch3.MapMode = "FlatFace"
sketch3.addGeometry([
    Part.Circle(App.Vector(176, 15, 0), App.Vector(0, 0, 1), 1.6),
    Part.Circle(App.Vector(191, -15, 0), App.Vector(0, 0, 1), 1.6),
    Part.Circle(App.Vector(191, 15, 0), App.Vector(0, 0, 1), 1.6),
    Part.Circle(App.Vector(176, -15, 0), App.Vector(0, 0, 1), 1.6),
    Part.Circle(App.Vector(-191, 15, 0), App.Vector(0, 0, 1), 1.6),
    Part.Circle(App.Vector(-176, -15, 0), App.Vector(0, 0, 1), 1.6),
    Part.Circle(App.Vector(-176, 15, 0), App.Vector(0, 0, 1), 1.6),
    Part.Circle(App.Vector(-191, -15, 0), App.Vector(0, 0, 1), 1.6),
], False)
sketch3.addConstraint([
    Sketcher.Constraint("Equal", 0, 1),
    Sketcher.Constraint("Equal", 1, 2),
    Sketcher.Constraint("Equal", 2, 3),
    Sketcher.Constraint("Equal", 3, 4),
    Sketcher.Constraint("Equal", 4, 5),
    Sketcher.Constraint("Equal", 5, 6),
    Sketcher.Constraint("Equal", 6, 7),
    Sketcher.Constraint("Symmetric", 1, 3, 4, 3, -1, 1),
    Sketcher.Constraint("Symmetric", 0, 3, 5, 3, -1, 1),
    Sketcher.Constraint("Symmetric", 3, 3, 6, 3, -1, 1),
    Sketcher.Constraint("Symmetric", 2, 3, 7, 3, -1, 1),
    Sketcher.Constraint("Symmetric", 2, 3, 4, 3, -2),
    Sketcher.Constraint("Symmetric", 3, 3, 5, 3, -2),
    Sketcher.Constraint("Horizontal", 0, 3, 2, 3),
    Sketcher.Constraint("Diameter", 0, 3.2),
    Sketcher.Constraint("DistanceX", -1, 1, 0, 3, 176.0),
    Sketcher.Constraint("DistanceY", -1, 1, 0, 3, 15.0),
    Sketcher.Constraint("DistanceX", -1, 1, 1, 3, 191.0),
])
sketch3.setExpression("Constraints[14]", "Params.sketch3_diameter")
doc.recompute()
hole = body.newObject("PartDesign::Hole", "Hole")
hole.Profile = sketch3
hole.ThreadType = "None"
hole.setExpression("Diameter", "Params.hole_diameter")
hole.DepthType = "ThroughAll"

doc.recompute()
